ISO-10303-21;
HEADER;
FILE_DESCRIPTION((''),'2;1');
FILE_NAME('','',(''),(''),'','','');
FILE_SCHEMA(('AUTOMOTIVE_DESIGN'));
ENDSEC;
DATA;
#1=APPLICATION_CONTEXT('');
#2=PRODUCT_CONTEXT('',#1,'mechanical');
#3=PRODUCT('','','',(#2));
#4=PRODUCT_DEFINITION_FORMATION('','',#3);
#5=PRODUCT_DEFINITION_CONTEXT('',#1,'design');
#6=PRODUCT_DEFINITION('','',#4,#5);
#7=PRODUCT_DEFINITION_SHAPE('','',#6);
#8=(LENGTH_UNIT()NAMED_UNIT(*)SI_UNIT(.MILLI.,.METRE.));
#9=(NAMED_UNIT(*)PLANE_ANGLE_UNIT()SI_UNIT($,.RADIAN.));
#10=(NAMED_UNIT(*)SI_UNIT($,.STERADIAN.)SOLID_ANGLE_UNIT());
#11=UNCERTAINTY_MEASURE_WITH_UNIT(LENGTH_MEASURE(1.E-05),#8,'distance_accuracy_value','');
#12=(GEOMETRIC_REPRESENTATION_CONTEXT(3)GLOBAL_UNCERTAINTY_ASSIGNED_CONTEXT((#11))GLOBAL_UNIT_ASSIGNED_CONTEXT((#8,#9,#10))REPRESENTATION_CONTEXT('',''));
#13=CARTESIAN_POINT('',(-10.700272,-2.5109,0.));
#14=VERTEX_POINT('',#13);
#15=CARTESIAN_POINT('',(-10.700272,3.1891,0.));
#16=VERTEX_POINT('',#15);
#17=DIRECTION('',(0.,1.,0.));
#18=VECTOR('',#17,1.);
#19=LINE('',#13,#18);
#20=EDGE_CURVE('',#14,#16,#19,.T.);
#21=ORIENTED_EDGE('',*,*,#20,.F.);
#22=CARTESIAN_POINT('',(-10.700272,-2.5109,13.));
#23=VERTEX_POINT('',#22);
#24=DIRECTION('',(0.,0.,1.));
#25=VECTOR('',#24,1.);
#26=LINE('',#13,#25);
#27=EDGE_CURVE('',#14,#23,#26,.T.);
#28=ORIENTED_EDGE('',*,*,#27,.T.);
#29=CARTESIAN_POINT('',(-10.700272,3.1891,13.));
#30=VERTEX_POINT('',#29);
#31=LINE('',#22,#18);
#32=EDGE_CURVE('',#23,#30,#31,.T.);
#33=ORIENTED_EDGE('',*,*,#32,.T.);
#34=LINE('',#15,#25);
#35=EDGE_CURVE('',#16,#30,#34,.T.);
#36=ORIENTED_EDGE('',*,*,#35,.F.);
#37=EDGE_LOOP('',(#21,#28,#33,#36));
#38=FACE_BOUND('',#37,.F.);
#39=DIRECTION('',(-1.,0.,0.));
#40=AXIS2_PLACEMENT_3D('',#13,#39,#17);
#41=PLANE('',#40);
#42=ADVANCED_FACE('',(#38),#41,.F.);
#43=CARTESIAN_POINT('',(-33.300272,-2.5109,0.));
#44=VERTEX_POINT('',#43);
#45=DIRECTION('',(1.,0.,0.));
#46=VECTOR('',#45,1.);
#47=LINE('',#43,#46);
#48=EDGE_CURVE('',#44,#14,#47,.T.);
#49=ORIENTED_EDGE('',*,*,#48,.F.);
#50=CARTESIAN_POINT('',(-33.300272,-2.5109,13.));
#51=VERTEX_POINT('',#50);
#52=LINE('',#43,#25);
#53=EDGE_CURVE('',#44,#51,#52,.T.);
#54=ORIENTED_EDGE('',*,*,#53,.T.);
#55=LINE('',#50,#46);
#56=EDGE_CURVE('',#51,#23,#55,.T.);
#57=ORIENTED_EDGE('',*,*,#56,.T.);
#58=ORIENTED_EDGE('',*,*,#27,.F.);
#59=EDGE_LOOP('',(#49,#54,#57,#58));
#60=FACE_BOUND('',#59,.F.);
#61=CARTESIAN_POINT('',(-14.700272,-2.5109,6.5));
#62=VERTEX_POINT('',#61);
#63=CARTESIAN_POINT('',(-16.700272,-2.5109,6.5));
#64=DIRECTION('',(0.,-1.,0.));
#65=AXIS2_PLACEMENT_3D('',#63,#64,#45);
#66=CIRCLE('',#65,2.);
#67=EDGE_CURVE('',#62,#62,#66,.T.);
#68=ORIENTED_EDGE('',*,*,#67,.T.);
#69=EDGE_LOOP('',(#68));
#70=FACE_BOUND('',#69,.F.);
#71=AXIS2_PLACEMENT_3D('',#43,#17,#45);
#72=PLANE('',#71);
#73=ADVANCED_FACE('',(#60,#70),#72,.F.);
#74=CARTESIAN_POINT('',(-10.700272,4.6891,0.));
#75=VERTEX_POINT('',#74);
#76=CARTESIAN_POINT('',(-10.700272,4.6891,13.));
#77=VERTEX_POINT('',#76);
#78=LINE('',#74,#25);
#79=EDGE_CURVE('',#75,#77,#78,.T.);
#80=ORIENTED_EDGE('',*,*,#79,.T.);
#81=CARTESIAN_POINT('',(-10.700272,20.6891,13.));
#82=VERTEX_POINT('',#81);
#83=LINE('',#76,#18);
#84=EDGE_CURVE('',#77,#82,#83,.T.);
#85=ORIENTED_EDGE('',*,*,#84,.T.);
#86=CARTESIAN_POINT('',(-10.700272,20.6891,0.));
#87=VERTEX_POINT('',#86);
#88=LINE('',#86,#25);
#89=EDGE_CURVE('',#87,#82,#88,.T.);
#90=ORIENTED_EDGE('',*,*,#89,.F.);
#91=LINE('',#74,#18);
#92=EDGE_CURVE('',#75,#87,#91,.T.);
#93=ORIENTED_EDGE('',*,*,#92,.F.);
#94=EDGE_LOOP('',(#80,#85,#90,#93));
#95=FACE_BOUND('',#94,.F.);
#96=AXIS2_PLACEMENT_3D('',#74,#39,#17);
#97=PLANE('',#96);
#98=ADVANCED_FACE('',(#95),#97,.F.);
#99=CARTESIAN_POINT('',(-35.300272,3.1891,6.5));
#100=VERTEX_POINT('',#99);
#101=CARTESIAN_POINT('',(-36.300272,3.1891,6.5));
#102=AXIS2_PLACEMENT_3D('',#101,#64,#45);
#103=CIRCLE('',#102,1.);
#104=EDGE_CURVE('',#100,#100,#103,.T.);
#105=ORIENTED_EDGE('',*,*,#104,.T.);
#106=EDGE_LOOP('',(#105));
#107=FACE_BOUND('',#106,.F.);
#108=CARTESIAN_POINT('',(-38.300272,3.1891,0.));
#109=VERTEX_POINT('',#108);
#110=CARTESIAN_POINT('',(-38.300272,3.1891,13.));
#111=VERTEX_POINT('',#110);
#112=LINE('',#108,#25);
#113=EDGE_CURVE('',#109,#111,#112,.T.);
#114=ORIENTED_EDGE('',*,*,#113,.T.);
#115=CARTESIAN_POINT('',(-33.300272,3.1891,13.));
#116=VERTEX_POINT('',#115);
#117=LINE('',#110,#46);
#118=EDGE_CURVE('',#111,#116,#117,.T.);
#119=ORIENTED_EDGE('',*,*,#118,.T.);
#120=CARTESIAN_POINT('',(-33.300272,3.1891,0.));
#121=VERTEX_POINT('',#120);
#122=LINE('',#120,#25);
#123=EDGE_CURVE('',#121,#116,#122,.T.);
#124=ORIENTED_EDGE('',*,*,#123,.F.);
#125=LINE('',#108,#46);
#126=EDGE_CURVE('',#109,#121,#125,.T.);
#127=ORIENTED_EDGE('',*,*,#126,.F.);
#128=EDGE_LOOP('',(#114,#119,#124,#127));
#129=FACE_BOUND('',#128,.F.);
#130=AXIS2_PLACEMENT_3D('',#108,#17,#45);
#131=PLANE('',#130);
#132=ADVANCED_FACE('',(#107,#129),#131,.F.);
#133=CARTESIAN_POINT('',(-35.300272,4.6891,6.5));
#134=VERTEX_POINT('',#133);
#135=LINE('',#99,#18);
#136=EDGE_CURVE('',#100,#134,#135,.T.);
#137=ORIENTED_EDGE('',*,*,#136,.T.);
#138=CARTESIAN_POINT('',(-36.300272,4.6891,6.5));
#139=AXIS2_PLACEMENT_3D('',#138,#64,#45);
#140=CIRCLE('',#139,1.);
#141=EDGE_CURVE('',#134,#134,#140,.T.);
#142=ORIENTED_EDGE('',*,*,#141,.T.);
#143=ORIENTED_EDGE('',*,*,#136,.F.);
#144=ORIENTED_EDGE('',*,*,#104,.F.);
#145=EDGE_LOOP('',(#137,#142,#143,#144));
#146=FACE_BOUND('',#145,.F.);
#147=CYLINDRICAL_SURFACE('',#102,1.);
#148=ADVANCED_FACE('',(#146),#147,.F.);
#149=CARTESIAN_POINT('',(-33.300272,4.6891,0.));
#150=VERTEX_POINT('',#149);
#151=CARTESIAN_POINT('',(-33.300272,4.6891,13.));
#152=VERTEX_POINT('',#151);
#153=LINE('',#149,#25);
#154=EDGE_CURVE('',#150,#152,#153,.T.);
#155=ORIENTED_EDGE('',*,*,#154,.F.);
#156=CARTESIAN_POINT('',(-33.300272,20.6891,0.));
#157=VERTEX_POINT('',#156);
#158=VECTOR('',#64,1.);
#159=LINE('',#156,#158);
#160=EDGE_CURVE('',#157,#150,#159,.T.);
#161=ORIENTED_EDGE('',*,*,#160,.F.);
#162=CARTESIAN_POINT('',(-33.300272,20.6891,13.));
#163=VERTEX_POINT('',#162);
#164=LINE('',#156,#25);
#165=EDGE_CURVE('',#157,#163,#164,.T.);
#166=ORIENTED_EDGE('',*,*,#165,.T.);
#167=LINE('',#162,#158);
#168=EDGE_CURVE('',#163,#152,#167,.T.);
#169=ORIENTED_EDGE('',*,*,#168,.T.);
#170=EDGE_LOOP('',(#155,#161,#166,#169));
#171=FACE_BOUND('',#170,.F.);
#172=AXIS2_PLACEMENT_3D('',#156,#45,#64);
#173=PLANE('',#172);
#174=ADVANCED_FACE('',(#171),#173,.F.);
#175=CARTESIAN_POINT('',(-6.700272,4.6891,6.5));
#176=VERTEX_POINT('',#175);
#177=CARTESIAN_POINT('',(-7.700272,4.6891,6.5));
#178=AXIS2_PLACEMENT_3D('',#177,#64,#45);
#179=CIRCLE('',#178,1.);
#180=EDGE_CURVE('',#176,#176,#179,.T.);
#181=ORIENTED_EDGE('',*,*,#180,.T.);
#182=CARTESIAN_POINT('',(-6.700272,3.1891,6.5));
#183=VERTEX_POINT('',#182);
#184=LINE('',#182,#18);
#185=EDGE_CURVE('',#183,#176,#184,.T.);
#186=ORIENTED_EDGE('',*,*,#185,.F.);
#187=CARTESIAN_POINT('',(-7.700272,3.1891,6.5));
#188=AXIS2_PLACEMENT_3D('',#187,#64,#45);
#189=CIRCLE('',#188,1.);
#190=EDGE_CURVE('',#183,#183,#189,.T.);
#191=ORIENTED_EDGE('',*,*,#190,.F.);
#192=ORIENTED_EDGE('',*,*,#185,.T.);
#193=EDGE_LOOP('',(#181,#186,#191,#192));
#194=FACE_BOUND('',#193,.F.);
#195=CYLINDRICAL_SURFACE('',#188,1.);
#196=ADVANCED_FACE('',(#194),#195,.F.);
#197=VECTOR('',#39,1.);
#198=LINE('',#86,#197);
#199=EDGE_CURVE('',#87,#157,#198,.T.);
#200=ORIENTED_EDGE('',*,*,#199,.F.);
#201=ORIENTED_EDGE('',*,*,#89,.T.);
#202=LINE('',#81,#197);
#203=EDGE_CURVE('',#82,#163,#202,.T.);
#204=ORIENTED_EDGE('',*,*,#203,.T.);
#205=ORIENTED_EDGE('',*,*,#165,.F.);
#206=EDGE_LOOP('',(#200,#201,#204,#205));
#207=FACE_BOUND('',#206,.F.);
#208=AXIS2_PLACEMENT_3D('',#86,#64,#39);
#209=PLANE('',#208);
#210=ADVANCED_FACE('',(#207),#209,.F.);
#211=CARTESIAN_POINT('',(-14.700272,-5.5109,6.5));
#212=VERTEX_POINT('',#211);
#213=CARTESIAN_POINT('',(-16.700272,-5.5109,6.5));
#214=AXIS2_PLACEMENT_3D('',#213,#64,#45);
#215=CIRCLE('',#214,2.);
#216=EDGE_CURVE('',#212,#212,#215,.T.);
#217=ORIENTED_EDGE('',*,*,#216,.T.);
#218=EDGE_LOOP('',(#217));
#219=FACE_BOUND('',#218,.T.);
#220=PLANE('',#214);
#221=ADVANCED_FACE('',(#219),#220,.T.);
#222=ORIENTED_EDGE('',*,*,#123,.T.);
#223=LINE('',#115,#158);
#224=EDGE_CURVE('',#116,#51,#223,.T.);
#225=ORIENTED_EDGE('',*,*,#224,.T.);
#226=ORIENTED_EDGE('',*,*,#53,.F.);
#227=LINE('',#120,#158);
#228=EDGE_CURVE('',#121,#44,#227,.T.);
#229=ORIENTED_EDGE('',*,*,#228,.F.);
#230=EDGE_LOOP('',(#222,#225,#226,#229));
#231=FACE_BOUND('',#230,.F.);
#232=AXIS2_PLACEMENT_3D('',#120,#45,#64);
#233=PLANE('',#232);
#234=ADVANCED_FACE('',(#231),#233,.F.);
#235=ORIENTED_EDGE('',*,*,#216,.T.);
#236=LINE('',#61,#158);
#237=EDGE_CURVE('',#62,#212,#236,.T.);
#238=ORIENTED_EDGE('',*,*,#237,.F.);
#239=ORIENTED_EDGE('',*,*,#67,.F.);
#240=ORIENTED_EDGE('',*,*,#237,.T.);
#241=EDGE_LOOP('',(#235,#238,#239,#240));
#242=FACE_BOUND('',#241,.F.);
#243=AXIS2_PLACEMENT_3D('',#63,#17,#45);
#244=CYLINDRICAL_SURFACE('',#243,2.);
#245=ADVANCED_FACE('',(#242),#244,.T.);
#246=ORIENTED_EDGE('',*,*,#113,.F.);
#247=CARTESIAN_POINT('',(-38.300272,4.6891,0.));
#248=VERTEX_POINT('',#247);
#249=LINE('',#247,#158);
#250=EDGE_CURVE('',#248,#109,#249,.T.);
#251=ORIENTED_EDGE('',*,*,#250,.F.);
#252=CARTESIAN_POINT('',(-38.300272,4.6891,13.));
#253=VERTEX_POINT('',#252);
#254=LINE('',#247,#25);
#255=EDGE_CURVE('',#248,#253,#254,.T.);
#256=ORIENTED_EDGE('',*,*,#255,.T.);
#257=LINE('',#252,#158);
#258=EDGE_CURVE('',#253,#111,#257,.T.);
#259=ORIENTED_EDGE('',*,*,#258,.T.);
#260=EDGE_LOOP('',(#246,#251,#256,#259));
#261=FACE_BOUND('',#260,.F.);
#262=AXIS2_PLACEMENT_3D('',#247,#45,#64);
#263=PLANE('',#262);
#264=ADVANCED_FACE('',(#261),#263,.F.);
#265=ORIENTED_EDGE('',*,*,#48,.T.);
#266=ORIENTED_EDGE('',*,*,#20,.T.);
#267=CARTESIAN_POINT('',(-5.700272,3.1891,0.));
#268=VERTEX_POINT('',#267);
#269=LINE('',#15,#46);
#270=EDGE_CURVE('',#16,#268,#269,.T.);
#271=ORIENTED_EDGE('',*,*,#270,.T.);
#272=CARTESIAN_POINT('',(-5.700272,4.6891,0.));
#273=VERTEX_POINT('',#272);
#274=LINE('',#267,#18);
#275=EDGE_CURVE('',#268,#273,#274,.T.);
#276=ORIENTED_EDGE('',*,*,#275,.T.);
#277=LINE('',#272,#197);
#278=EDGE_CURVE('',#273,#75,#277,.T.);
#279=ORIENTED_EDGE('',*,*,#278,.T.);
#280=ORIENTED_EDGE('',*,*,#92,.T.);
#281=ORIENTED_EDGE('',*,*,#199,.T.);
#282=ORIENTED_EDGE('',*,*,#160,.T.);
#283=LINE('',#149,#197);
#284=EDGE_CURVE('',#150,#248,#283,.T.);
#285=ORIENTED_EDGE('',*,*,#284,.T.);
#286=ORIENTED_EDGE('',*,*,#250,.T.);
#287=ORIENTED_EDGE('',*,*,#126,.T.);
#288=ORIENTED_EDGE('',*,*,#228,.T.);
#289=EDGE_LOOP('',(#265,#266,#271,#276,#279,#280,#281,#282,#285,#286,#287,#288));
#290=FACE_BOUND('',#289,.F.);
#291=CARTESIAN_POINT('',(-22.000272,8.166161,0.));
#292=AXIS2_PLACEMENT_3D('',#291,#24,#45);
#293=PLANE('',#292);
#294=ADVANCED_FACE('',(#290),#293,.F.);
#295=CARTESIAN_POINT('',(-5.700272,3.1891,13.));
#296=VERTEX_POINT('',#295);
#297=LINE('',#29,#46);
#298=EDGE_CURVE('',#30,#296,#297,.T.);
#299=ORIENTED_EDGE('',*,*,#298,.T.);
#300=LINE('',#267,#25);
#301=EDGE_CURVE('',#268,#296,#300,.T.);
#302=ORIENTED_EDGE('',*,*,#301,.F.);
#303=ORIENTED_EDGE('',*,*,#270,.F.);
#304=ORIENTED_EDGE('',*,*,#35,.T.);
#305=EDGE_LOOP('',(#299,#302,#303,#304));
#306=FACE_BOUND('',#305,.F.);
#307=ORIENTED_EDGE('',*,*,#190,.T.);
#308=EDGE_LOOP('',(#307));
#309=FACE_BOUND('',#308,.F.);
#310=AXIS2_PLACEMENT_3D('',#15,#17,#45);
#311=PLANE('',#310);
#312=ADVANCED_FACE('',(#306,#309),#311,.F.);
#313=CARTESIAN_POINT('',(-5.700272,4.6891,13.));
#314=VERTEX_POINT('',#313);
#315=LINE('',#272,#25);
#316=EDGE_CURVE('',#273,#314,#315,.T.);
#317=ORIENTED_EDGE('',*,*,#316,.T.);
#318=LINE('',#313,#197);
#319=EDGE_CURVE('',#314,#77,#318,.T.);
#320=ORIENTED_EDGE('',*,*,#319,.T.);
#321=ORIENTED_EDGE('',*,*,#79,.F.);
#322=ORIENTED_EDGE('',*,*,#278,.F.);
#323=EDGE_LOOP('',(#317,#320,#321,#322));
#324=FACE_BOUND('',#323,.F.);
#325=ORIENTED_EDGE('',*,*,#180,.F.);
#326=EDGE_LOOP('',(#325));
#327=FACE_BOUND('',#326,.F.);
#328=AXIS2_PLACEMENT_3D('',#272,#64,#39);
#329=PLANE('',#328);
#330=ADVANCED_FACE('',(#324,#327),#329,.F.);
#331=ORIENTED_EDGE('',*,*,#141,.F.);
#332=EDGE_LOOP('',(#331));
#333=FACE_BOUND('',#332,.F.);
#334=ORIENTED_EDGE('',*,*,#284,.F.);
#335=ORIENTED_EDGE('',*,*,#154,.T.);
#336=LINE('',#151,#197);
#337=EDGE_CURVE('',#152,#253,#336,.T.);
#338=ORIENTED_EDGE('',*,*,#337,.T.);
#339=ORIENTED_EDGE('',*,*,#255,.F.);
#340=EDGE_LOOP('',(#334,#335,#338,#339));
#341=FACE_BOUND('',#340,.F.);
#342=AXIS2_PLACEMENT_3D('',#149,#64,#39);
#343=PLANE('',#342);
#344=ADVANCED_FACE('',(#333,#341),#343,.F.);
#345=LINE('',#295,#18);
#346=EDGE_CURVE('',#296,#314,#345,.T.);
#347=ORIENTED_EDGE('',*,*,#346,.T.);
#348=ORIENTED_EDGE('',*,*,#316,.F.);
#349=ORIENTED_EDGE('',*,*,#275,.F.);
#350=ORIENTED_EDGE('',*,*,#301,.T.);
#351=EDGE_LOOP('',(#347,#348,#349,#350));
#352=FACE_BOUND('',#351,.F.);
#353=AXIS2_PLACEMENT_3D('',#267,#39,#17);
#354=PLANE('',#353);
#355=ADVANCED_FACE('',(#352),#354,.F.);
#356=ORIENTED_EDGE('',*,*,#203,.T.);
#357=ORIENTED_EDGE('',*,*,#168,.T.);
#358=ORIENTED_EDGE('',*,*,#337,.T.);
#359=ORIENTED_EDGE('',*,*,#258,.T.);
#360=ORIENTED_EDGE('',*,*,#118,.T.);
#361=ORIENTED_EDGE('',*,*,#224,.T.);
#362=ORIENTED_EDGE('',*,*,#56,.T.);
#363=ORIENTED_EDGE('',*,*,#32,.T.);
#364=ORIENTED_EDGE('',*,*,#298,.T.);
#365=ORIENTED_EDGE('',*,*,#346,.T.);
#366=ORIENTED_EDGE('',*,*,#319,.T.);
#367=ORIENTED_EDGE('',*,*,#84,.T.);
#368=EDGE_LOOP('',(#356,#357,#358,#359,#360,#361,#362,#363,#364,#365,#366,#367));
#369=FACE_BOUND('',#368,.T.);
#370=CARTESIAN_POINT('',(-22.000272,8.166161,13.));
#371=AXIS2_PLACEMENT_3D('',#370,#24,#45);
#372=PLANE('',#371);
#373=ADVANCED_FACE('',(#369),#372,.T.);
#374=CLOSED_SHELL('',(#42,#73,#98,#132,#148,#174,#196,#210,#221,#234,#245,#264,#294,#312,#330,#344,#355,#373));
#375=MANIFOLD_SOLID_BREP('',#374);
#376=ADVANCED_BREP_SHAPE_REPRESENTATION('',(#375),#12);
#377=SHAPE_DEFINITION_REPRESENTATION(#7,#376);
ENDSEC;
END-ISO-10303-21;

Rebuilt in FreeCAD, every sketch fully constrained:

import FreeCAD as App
import Part
import Sketcher

V = App.Vector
Q = App.Units.Quantity

doc = App.newDocument("Part")
body = doc.addObject("PartDesign::Body", "Body")

# Sketch on XY plane
sketch1 = body.newObject("Sketcher::SketchObject", "Sketch")
sketch1.AttachmentSupport = (doc.getObject("XY_Plane"), [""])
sketch1.MapMode = "FlatFace"
sketch1.addGeometry(Part.LineSegment(V(-10.7, 20.7, 0), V(-33.3, 20.7, 0)), False)
sketch1.addGeometry(Part.LineSegment(V(-33.3, 20.7, 0), V(-33.3, 4.7, 0)), False)
sketch1.addGeometry(Part.LineSegment(V(-33.3, 4.7, 0), V(-38.3, 4.7, 0)), False)
sketch1.addGeometry(Part.LineSegment(V(-38.3, 4.7, 0), V(-38.3, 3.2, 0)), False)
sketch1.addGeometry(Part.LineSegment(V(-38.3, 3.2, 0), V(-33.3, 3.2, 0)), False)
sketch1.addGeometry(Part.LineSegment(V(-33.3, 3.2, 0), V(-33.3, -2.5, 0)), False)
sketch1.addGeometry(Part.LineSegment(V(-33.3, -2.5, 0), V(-10.7, -2.5, 0)), False)
sketch1.addGeometry(Part.LineSegment(V(-10.7, -2.5, 0), V(-10.7, 3.2, 0)), False)
sketch1.addGeometry(Part.LineSegment(V(-10.7, 3.2, 0), V(-5.7, 3.2, 0)), False)
sketch1.addGeometry(Part.LineSegment(V(-5.7, 3.2, 0), V(-5.7, 4.7, 0)), False)
sketch1.addGeometry(Part.LineSegment(V(-5.7, 4.7, 0), V(-10.7, 4.7, 0)), False)
sketch1.addGeometry(Part.LineSegment(V(-10.7, 4.7, 0), V(-10.7, 20.7, 0)), False)
sketch1.addConstraint(Sketcher.Constraint("Coincident", 0, 2, 1, 1))
sketch1.addConstraint(Sketcher.Constraint("Coincident", 1, 2, 2, 1))
sketch1.addConstraint(Sketcher.Constraint("Coincident", 2, 2, 3, 1))
sketch1.addConstraint(Sketcher.Constraint("Coincident", 3, 2, 4, 1))
sketch1.addConstraint(Sketcher.Constraint("Coincident", 4, 2, 5, 1))
sketch1.addConstraint(Sketcher.Constraint("Coincident", 5, 2, 6, 1))
sketch1.addConstraint(Sketcher.Constraint("Coincident", 6, 2, 7, 1))
sketch1.addConstraint(Sketcher.Constraint("Coincident", 7, 2, 8, 1))
sketch1.addConstraint(Sketcher.Constraint("Coincident", 8, 2, 9, 1))
sketch1.addConstraint(Sketcher.Constraint("Coincident", 9, 2, 10, 1))
sketch1.addConstraint(Sketcher.Constraint("Coincident", 10, 2, 11, 1))
sketch1.addConstraint(Sketcher.Constraint("Coincident", 11, 2, 0, 1))
sketch1.addConstraint(Sketcher.Constraint("Horizontal", 0))
sketch1.addConstraint(Sketcher.Constraint("Vertical", 1))
sketch1.addConstraint(Sketcher.Constraint("Horizontal", 2))
sketch1.addConstraint(Sketcher.Constraint("Vertical", 3))
sketch1.addConstraint(Sketcher.Constraint("Horizontal", 4))
sketch1.addConstraint(Sketcher.Constraint("Vertical", 5))
sketch1.addConstraint(Sketcher.Constraint("Horizontal", 6))
sketch1.addConstraint(Sketcher.Constraint("Vertical", 7))
sketch1.addConstraint(Sketcher.Constraint("Horizontal", 8))
sketch1.addConstraint(Sketcher.Constraint("Vertical", 9))
sketch1.addConstraint(Sketcher.Constraint("Horizontal", 10))
sketch1.addConstraint(Sketcher.Constraint("Vertical", 11))
sketch1.addConstraint(Sketcher.Constraint("Horizontal", 4, 2, 7, 2))
sketch1.addConstraint(Sketcher.Constraint("Horizontal", 2, 2, 9, 2))
sketch1.addConstraint(Sketcher.Constraint("Vertical", 1, 2, 4, 2))
sketch1.addConstraint(Sketcher.Constraint("Vertical", 7, 2, 10, 2))
sketch1.addConstraint(Sketcher.Constraint("Equal", 4, 8))
sketch1.addConstraint(Sketcher.Constraint("DistanceX", 2, 2, 2, 1, Q("5 mm")))
sketch1.addConstraint(Sketcher.Constraint("DistanceY", 1, 2, 1, 1, Q("16 mm")))
sketch1.addConstraint(Sketcher.Constraint("DistanceX", 0, 2, 0, 1, Q("22.6 mm")))
sketch1.addConstraint(Sketcher.Constraint("DistanceY", 3, 2, 3, 1, Q("1.5 mm")))
sketch1.addConstraint(Sketcher.Constraint("DistanceY", 5, 2, 5, 1, Q("5.7 mm")))
sketch1.addConstraint(Sketcher.Constraint("DistanceY", -1, 1, 0, 2, Q("20.6891 mm")))
sketch1.addConstraint(Sketcher.Constraint("DistanceX", 0, 2, -1, 1, Q("33.300272 mm")))
pad1 = body.newObject("PartDesign::Pad", "Pad")
pad1.Profile = sketch1
pad1.Length = 13

# Sketch on XZ plane
sketch2 = body.newObject("Sketcher::SketchObject", "Sketch001")
sketch2.AttachmentSupport = (doc.getObject("XZ_Plane"), [""])
sketch2.MapMode = "FlatFace"
sketch2.AttachmentOffset = App.Placement(V(0, 0, -3.1891), App.Rotation())
sketch2.addGeometry(Part.Circle(V(-36.3, 6.5, 0), V(0, 0, 1), 1), False)
sketch2.addGeometry(Part.Circle(V(-7.7, 6.5, 0), V(0, 0, 1), 1), False)
sketch2.addConstraint(Sketcher.Constraint("Equal", 0, 1))
sketch2.addConstraint(Sketcher.Constraint("Horizontal", 0, 3, 1, 3))
sketch2.addConstraint(Sketcher.Constraint("Diameter", 0, Q("2 mm")))
sketch2.addConstraint(Sketcher.Constraint("DistanceY", -1, 1, 0, 3, Q("6.5 mm")))
sketch2.addConstraint(Sketcher.Constraint("DistanceX", 0, 3, 1, 3, Q("28.6 mm")))
sketch2.addConstraint(Sketcher.Constraint("DistanceX", 0, 3, -1, 1, Q("36.300272 mm")))
pocket1 = body.newObject("PartDesign::Pocket", "Pocket")
pocket1.Profile = sketch2
pocket1.Type = "ThroughAll"

# Sketch on XZ plane
sketch3 = body.newObject("Sketcher::SketchObject", "Sketch002")
sketch3.AttachmentSupport = (doc.getObject("XZ_Plane"), [""])
sketch3.MapMode = "FlatFace"
sketch3.AttachmentOffset = App.Placement(V(0, 0, 2.5109), App.Rotation())
sketch3.addGeometry(Part.Circle(V(-16.7, 6.5, 0), V(0, 0, 1), 2), False)
sketch3.addConstraint(Sketcher.Constraint("Diameter", 0, Q("4 mm")))
sketch3.addConstraint(Sketcher.Constraint("DistanceY", -1, 1, 0, 3, Q("6.5 mm")))
sketch3.addConstraint(Sketcher.Constraint("DistanceX", 0, 3, -1, 1, Q("16.700272 mm")))
pad2 = body.newObject("PartDesign::Pad", "Pad001")
pad2.Profile = sketch3
pad2.Length = 3

doc.recompute()
